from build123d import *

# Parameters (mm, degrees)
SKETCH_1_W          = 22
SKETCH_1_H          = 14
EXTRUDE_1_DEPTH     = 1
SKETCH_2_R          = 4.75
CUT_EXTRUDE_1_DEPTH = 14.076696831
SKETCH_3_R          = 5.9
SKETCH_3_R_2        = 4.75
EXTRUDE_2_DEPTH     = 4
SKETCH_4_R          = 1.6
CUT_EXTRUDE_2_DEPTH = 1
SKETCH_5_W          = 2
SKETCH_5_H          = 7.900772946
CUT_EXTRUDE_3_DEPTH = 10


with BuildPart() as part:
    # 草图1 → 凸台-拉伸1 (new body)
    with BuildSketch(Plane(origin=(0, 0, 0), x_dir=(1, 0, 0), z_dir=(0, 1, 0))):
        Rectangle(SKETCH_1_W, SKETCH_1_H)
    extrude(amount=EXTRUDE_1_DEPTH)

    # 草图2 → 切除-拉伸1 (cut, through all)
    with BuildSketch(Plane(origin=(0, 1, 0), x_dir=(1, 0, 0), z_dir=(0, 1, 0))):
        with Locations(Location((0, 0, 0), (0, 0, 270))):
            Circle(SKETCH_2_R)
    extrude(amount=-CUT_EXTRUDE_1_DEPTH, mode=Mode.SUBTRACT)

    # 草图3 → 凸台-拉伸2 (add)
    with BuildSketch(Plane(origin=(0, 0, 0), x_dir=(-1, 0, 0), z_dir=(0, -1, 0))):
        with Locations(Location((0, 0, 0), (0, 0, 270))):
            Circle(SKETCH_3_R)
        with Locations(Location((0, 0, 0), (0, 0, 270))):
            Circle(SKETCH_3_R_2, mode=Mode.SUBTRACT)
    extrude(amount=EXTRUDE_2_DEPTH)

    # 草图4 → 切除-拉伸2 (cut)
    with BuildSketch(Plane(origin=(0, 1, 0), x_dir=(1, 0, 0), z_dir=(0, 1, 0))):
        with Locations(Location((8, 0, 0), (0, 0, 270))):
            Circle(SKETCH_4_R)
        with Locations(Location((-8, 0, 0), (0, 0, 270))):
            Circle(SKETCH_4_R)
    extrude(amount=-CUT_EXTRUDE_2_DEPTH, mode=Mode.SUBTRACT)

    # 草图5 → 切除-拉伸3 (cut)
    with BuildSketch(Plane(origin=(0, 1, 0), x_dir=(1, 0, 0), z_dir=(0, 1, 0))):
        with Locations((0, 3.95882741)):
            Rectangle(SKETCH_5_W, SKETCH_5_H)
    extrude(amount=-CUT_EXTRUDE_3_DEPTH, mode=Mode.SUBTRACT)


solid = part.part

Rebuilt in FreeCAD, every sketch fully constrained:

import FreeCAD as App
import Part
import Sketcher

V = App.Vector


def add_polygon(sketch, points):
    """Adds a closed chain of lines whose ends are joined by coincident constraints."""
    first, n = sketch.GeometryCount, len(points)
    for a, b in zip(points, points[1:] + points[:1]):
        sketch.addGeometry(Part.LineSegment(App.Vector(*a, 0), App.Vector(*b, 0)), False)
    for i in range(n):
        sketch.addConstraint(Sketcher.Constraint("Coincident", first + i, 2, first + (i + 1) % n, 1))

doc = App.newDocument("Part")
params = doc.addObject("Spreadsheet::Sheet", "Params")
for row, (alias, value) in enumerate([
    ("sketch1_width", "22 mm"),
    ("sketch1_height", "14 mm"),
    ("pad1_length", "1 mm"),
    ("sketch2_diameter", "9.5 mm"),
    ("sketch3_diameter", "11.8 mm"),
    ("sketch3_diameter2", "9.5 mm"),
    ("pad2_length", "4 mm"),
    ("sketch4_diameter", "3.2 mm"),
    ("pocket2_length", "1 mm"),
    ("sketch5_width", "2 mm"),
    ("pocket3_length", "10 mm"),
], start=1):
    params.set(f"A{row}", alias)
    params.set(f"B{row}", "=" + value)
    params.setAlias(f"B{row}", alias)

body = doc.addObject("PartDesign::Body", "Body")

sketch1 = body.newObject("Sketcher::SketchObject", "Sketch")
sketch1.AttachmentSupport = (doc.getObject("XZ_Plane"), [""])
sketch1.MapMode = "FlatFace"
add_polygon(sketch1, [(-11, -7), (-11, 7), (11, 7), (11, -7)])
sketch1.addConstraint([
    Sketcher.Constraint("Vertical", 0),
    Sketcher.Constraint("Horizontal", 1),
    Sketcher.Constraint("Vertical", 2),
    Sketcher.Constraint("Horizontal", 3),
    Sketcher.Constraint("Symmetric", 0, 2, 2, 2, -1, 1),
    Sketcher.Constraint("DistanceX", 1, 1, 1, 2, 22.0),
    Sketcher.Constraint("DistanceY", 0, 1, 0, 2, 14.0),
])
sketch1.setExpression("Constraints[9]", "Params.sketch1_width")
sketch1.setExpression("Constraints[10]", "Params.sketch1_height")
pad1 = body.newObject("PartDesign::Pad", "Pad")
pad1.Profile = sketch1
pad1.setExpression("Length", "Params.pad1_length")
pad1.Reversed = True

sketch2 = body.newObject("Sketcher::SketchObject", "Sketch001")
sketch2.AttachmentSupport = (doc.getObject("XZ_Plane"), [""])
sketch2.MapMode = "FlatFace"
sketch2.AttachmentOffset = App.Placement(V(0, 0, -1), App.Rotation())
sketch2.addGeometry(Part.Circle(V(0, 0, 0), V(0, 0, 1), 4.8), False)
sketch2.addConstraint([
    Sketcher.Constraint("Coincident", 0, 3, -1, 1),
    Sketcher.Constraint("Diameter", 0, 9.5),
])
sketch2.setExpression("Constraints[1]", "Params.sketch2_diameter")
pocket1 = body.newObject("PartDesign::Pocket", "Pocket")
pocket1.Profile = sketch2
pocket1.Type = "ThroughAll"
pocket1.Reversed = True

sketch3 = body.newObject("Sketcher::SketchObject", "Sketch002")
sketch3.AttachmentSupport = (doc.getObject("XZ_Plane"), [""])
sketch3.MapMode = "FlatFace"
sketch3.addGeometry([
    Part.Circle(V(0, 0, 0), V(0, 0, 1), 5.9),
    Part.Circle(V(0, 0, 0), V(0, 0, 1), 4.8),
], False)
sketch3.addConstraint([
    Sketcher.Constraint("Coincident", 0, 3, -1, 1),
    Sketcher.Constraint("Coincident", 1, 3, -1, 1),
    Sketcher.Constraint("Diameter", 0, 11.8),
    Sketcher.Constraint("Diameter", 1, 9.5),
])
sketch3.setExpression("Constraints[2]", "Params.sketch3_diameter")
sketch3.setExpression("Constraints[3]", "Params.sketch3_diameter2")
pad2 = body.newObject("PartDesign::Pad", "Pad001")
pad2.Profile = sketch3
pad2.setExpression("Length", "Params.pad2_length")

sketch4 = body.newObject("Sketcher::SketchObject", "Sketch003")
sketch4.AttachmentSupport = (doc.getObject("XZ_Plane"), [""])
sketch4.MapMode = "FlatFace"
sketch4.AttachmentOffset = App.Placement(V(0, 0, -1), App.Rotation())
sketch4.addGeometry([
    Part.Circle(V(8, 0, 0), V(0, 0, 1), 1.6),
    Part.Circle(V(-8, 0, 0), V(0, 0, 1), 1.6),
], False)
sketch4.addConstraint([
    Sketcher.Constraint("Equal", 0, 1),
    Sketcher.Constraint("Symmetric", 0, 3, 1, 3, -1, 1),
    Sketcher.Constraint("PointOnObject", 0, 3, -1),
    Sketcher.Constraint("Diameter", 0, 3.2),
    Sketcher.Constraint("DistanceX", -1, 1, 0, 3, 8.0),
])
sketch4.setExpression("Constraints[3]", "Params.sketch4_diameter")
pocket2 = body.newObject("PartDesign::Pocket", "Pocket001")
pocket2.Profile = sketch4
pocket2.setExpression("Length", "Params.pocket2_length")
pocket2.Reversed = True

sketch5 = body.newObject("Sketcher::SketchObject", "Sketch004")
sketch5.AttachmentSupport = (doc.getObject("XZ_Plane"), [""])
sketch5.MapMode = "FlatFace"
sketch5.AttachmentOffset = App.Placement(V(0, 0, -1), App.Rotation())
add_polygon(sketch5, [(-1, -7.9), (-1, 0), (1, 0), (1, -7.9)])
sketch5.addConstraint([
    Sketcher.Constraint("Vertical", 0),
    Sketcher.Constraint("Horizontal", 1),
    Sketcher.Constraint("Vertical", 2),
    Sketcher.Constraint("Horizontal", 3),
    Sketcher.Constraint("DistanceX", 1, 1, 1, 2, 2.0),
    Sketcher.Constraint("DistanceX", 0, 2, -1, 1, 1.0),
    Sketcher.Constraint("DistanceY", 0, 1, 0, 2, 7.900773),
    Sketcher.Constraint("DistanceY", 0, 2, -1, 1, 0.008441),
])
sketch5.setExpression("Constraints[8]", "Params.sketch5_width")
pocket3 = body.newObject("PartDesign::Pocket", "Pocket002")
pocket3.Profile = sketch5
pocket3.setExpression("Length", "Params.pocket3_length")
pocket3.Reversed = True

doc.recompute()
